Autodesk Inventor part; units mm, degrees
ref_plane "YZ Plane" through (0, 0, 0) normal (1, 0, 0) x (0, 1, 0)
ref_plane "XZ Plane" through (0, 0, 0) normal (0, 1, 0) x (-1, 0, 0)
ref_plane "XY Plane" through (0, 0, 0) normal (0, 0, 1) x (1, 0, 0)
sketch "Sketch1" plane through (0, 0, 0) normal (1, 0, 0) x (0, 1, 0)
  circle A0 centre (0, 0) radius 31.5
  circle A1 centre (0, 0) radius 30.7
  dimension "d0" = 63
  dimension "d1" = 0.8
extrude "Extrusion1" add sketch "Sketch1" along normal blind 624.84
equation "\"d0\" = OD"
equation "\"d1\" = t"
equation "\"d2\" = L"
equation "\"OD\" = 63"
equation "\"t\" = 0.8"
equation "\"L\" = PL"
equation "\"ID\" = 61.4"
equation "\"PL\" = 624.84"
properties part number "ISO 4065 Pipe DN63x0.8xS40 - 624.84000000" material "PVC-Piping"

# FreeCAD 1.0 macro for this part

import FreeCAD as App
import Part
import Sketcher
from FreeCAD import Vector
Q = App.Units.Quantity

doc = App.newDocument("Part")
params = doc.addObject("Spreadsheet::Sheet", "Params")
for row, (alias, value) in enumerate([
    ("sketch1_diameter", "63 mm"),
    ("sketch1_diameter2", "61.4 mm"),
    ("pad1_length", "624.84 mm"),
], start=1):
    params.set(f"A{row}", alias)
    params.set(f"B{row}", "=" + value)
    params.setAlias(f"B{row}", alias)

body = doc.addObject("PartDesign::Body", "Body")

# Sketch on YZ plane
sketch1 = body.newObject("Sketcher::SketchObject", "Sketch")
sketch1.AttachmentSupport = (doc.getObject("YZ_Plane"), [""])
sketch1.MapMode = "FlatFace"
sketch1.addGeometry(Part.Circle(Vector(0, 0, 0), Vector(0, 0, 1), 31.5), False)
sketch1.addGeometry(Part.Circle(Vector(0, 0, 0), Vector(0, 0, 1), 30.7), False)
sketch1.addConstraint(Sketcher.Constraint("Coincident", 0, 3, -1, 1))
sketch1.addConstraint(Sketcher.Constraint("Coincident", 1, 3, -1, 1))
sketch1.addConstraint(Sketcher.Constraint("Diameter", 0, Q("63 mm")))
sketch1.addConstraint(Sketcher.Constraint("Diameter", 1, Q("61.4 mm")))
sketch1.setExpression("Constraints[2]", "Params.sketch1_diameter")
sketch1.setExpression("Constraints[3]", "Params.sketch1_diameter2")
pad1 = body.newObject("PartDesign::Pad", "Pad")
pad1.Profile = sketch1
pad1.setExpression("Length", "Params.pad1_length")

doc.recompute()
